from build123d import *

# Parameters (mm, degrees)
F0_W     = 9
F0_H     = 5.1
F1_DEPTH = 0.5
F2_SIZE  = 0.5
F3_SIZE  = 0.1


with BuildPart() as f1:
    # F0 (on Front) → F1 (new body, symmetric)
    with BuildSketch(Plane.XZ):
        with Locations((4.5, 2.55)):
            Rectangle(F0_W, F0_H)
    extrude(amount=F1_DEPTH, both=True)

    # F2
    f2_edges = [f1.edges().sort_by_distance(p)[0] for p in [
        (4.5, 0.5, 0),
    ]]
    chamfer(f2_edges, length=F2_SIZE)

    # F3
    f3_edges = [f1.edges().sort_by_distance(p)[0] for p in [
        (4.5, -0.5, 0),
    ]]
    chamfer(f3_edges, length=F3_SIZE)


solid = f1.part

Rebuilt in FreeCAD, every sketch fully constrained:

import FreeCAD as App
import Part
import Sketcher

V = App.Vector


def edges_at(feature, points):
    """Names of the edges that pass closest to the given points."""
    edges = feature.Shape.Edges
    near = lambda p: min(range(len(edges)), key=lambda i: edges[i].distToShape(Part.Vertex(*p))[0])
    return sorted({f"Edge{near(p) + 1}" for p in points})


def add_polygon(sketch, points):
    """Adds a closed chain of lines whose ends are joined by coincident constraints."""
    first, n = sketch.GeometryCount, len(points)
    for a, b in zip(points, points[1:] + points[:1]):
        sketch.addGeometry(Part.LineSegment(App.Vector(*a, 0), App.Vector(*b, 0)), False)
    for i in range(n):
        sketch.addConstraint(Sketcher.Constraint("Coincident", first + i, 2, first + (i + 1) % n, 1))

doc = App.newDocument("Part")
body = doc.addObject("PartDesign::Body", "Body")

# Sketch on XZ plane
sketch1 = doc.addObject("Sketcher::SketchObject", "Sketch")
body.addObject(sketch1)
sketch1.AttachmentSupport = (doc.XZ_Plane, [""])
sketch1.MapMode = "FlatFace"
add_polygon(sketch1, [(0, 5.1), (0, 0), (9, 0), (9, 5.1)])  # lines 0-3
sketch1.addConstraint([
    Sketcher.Constraint("Vertical", 0),
    Sketcher.Constraint("Horizontal", 1),
    Sketcher.Constraint("Vertical", 2),
    Sketcher.Constraint("Horizontal", 3),
    Sketcher.Constraint("Coincident", 0, 2, -1, 1),
    Sketcher.Constraint("DistanceX", 1, 1, 1, 2, 9.0),
    Sketcher.Constraint("DistanceY", 0, 2, 0, 1, 5.1),
])
pad1 = doc.addObject("PartDesign::Pad", "Pad")
body.addObject(pad1)
pad1.Profile = sketch1
pad1.Length = 1
pad1.Midplane = True
doc.recompute()

chamfer = doc.addObject("PartDesign::Chamfer", "Chamfer")
body.addObject(chamfer)
chamfer.Base = (pad1, edges_at(pad1, [(4.5, 0.5, 0)]))
chamfer.Size = 0.5
doc.recompute()

chamfer2 = doc.addObject("PartDesign::Chamfer", "Chamfer001")
body.addObject(chamfer2)
chamfer2.Base = (chamfer, edges_at(chamfer, [(4.5, -0.5, 0)]))
chamfer2.Size = 0.1

doc.recompute()
